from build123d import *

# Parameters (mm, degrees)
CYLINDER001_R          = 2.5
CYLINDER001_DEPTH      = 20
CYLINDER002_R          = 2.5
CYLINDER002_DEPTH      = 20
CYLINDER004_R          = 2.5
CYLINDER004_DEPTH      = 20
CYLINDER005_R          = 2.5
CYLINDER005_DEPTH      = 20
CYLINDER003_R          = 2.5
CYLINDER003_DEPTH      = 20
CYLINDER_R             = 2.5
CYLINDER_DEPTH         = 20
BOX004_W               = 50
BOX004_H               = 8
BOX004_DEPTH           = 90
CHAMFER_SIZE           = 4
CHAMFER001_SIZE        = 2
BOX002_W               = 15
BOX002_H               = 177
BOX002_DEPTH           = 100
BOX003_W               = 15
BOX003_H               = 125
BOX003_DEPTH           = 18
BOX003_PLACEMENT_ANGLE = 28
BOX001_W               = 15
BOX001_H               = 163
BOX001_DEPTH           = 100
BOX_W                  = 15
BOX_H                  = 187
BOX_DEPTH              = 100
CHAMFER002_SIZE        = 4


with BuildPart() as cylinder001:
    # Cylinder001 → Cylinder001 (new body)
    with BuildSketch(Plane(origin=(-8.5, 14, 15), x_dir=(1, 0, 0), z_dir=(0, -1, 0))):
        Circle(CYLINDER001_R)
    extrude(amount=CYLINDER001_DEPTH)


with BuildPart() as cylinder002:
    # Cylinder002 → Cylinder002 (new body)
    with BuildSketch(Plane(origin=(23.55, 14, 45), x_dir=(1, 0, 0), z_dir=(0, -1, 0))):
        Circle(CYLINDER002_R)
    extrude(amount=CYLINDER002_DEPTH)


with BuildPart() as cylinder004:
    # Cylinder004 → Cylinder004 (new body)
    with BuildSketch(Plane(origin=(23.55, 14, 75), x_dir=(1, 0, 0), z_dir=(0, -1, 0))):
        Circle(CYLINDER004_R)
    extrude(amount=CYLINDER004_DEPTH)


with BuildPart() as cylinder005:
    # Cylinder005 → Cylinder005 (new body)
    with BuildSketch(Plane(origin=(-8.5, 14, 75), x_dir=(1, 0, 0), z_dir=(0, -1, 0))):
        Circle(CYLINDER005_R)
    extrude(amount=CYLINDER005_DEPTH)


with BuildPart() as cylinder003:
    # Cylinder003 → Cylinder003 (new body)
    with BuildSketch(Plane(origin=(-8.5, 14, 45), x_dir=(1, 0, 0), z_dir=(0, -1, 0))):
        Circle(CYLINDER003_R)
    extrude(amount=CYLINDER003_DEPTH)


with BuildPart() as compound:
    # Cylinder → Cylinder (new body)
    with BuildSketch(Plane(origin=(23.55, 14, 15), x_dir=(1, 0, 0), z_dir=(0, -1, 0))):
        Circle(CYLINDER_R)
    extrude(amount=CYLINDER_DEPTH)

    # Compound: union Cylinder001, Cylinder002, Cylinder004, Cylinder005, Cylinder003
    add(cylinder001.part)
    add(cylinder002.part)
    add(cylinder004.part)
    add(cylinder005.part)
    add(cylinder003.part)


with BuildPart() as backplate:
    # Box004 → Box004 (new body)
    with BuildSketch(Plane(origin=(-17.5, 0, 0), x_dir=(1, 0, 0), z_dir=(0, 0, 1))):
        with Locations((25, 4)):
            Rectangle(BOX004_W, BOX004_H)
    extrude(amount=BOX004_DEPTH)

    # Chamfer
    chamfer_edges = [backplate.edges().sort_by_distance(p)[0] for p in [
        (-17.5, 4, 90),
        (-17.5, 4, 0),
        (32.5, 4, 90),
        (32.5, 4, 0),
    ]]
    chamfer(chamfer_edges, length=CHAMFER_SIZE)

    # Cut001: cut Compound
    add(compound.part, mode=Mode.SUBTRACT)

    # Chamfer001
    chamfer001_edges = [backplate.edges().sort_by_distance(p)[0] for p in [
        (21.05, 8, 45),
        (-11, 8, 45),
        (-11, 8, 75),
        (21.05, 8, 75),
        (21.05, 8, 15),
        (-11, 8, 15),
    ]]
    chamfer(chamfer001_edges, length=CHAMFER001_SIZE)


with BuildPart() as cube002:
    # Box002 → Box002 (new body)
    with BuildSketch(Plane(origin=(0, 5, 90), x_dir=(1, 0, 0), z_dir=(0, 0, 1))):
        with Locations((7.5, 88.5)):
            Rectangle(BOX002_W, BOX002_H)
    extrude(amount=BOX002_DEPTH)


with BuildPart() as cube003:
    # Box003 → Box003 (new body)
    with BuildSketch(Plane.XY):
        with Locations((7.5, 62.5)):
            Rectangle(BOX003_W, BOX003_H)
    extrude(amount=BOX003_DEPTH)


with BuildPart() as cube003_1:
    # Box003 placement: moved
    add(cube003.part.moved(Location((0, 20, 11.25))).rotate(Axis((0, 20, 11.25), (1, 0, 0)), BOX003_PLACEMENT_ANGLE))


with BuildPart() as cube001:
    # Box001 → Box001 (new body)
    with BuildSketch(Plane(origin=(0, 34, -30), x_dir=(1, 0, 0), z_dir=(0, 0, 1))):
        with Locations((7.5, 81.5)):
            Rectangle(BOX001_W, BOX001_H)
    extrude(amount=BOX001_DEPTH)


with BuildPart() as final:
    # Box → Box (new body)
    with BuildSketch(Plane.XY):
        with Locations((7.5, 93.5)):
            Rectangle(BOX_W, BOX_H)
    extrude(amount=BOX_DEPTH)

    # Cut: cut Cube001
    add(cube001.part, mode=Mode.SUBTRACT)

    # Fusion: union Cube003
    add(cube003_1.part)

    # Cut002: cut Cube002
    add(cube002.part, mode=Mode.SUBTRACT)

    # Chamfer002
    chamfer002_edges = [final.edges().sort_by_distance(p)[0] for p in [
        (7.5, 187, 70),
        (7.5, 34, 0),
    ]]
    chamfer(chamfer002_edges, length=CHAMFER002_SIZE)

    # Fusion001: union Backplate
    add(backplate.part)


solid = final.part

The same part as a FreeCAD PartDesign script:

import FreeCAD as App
import Part
import Sketcher


def edges_at(feature, points):
    """Names of the edges that pass closest to the given points."""
    edges = feature.Shape.Edges
    near = lambda p: min(range(len(edges)), key=lambda i: edges[i].distToShape(Part.Vertex(*p))[0])
    return sorted({f"Edge{near(p) + 1}" for p in points})


def add_polygon(sketch, points):
    """Adds a closed chain of lines whose ends are joined by coincident constraints."""
    first, n = sketch.GeometryCount, len(points)
    for a, b in zip(points, points[1:] + points[:1]):
        sketch.addGeometry(Part.LineSegment(App.Vector(*a, 0), App.Vector(*b, 0)), False)
    for i in range(n):
        sketch.addConstraint(Sketcher.Constraint("Coincident", first + i, 2, first + (i + 1) % n, 1))

doc = App.newDocument("Part")
body = doc.addObject("PartDesign::Body", "Body")

# Sketch on XZ plane
sketch1 = body.newObject("Sketcher::SketchObject", "Sketch")
sketch1.AttachmentSupport = (doc.getObject("XZ_Plane"), [""])
sketch1.MapMode = "FlatFace"
sketch1.AttachmentOffset = App.Placement(App.Vector(0, 0, -14), App.Rotation())
sketch1.addGeometry(Part.Circle(App.Vector(-8.5, 15, 0), App.Vector(0, 0, 1), 2.5), False)
sketch1.addConstraint([
    Sketcher.Constraint("Diameter", 0, 5.0),
    Sketcher.Constraint("DistanceY", -1, 1, 0, 3, 15.0),
    Sketcher.Constraint("DistanceX", 0, 3, -1, 1, 8.5),
])
pad1 = body.newObject("PartDesign::Pad", "Pad")
pad1.Profile = sketch1
pad1.Length = 20
body2 = doc.addObject("PartDesign::Body", "Body001")

# Sketch on XZ plane
sketch2 = body2.newObject("Sketcher::SketchObject", "Sketch001")
sketch2.AttachmentSupport = (doc.getObject("XZ_Plane001"), [""])
sketch2.MapMode = "FlatFace"
sketch2.AttachmentOffset = App.Placement(App.Vector(0, 0, -14), App.Rotation())
sketch2.addGeometry(Part.Circle(App.Vector(23.55, 45, 0), App.Vector(0, 0, 1), 2.5), False)
sketch2.addConstraint([
    Sketcher.Constraint("Diameter", 0, 5.0),
    Sketcher.Constraint("DistanceY", -1, 1, 0, 3, 45.0),
    Sketcher.Constraint("DistanceX", -1, 1, 0, 3, 23.55),
])
pad2 = body2.newObject("PartDesign::Pad", "Pad001")
pad2.Profile = sketch2
pad2.Length = 20
body3 = doc.addObject("PartDesign::Body", "Body002")

# Sketch on XZ plane
sketch3 = body3.newObject("Sketcher::SketchObject", "Sketch002")
sketch3.AttachmentSupport = (doc.getObject("XZ_Plane002"), [""])
sketch3.MapMode = "FlatFace"
sketch3.AttachmentOffset = App.Placement(App.Vector(0, 0, -14), App.Rotation())
sketch3.addGeometry(Part.Circle(App.Vector(23.55, 75, 0), App.Vector(0, 0, 1), 2.5), False)
sketch3.addConstraint([
    Sketcher.Constraint("Diameter", 0, 5.0),
    Sketcher.Constraint("DistanceY", -1, 1, 0, 3, 75.0),
    Sketcher.Constraint("DistanceX", -1, 1, 0, 3, 23.55),
])
pad3 = body3.newObject("PartDesign::Pad", "Pad002")
pad3.Profile = sketch3
pad3.Length = 20
body4 = doc.addObject("PartDesign::Body", "Body003")

# Sketch on XZ plane
sketch4 = body4.newObject("Sketcher::SketchObject", "Sketch003")
sketch4.AttachmentSupport = (doc.getObject("XZ_Plane003"), [""])
sketch4.MapMode = "FlatFace"
sketch4.AttachmentOffset = App.Placement(App.Vector(0, 0, -14), App.Rotation())
sketch4.addGeometry(Part.Circle(App.Vector(-8.5, 75, 0), App.Vector(0, 0, 1), 2.5), False)
sketch4.addConstraint([
    Sketcher.Constraint("Diameter", 0, 5.0),
    Sketcher.Constraint("DistanceY", -1, 1, 0, 3, 75.0),
    Sketcher.Constraint("DistanceX", 0, 3, -1, 1, 8.5),
])
pad4 = body4.newObject("PartDesign::Pad", "Pad003")
pad4.Profile = sketch4
pad4.Length = 20
body5 = doc.addObject("PartDesign::Body", "Body004")

# Sketch on XZ plane
sketch5 = body5.newObject("Sketcher::SketchObject", "Sketch004")
sketch5.AttachmentSupport = (doc.getObject("XZ_Plane004"), [""])
sketch5.MapMode = "FlatFace"
sketch5.AttachmentOffset = App.Placement(App.Vector(0, 0, -14), App.Rotation())
sketch5.addGeometry(Part.Circle(App.Vector(-8.5, 45, 0), App.Vector(0, 0, 1), 2.5), False)
sketch5.addConstraint([
    Sketcher.Constraint("Diameter", 0, 5.0),
    Sketcher.Constraint("DistanceY", -1, 1, 0, 3, 45.0),
    Sketcher.Constraint("DistanceX", 0, 3, -1, 1, 8.5),
])
pad5 = body5.newObject("PartDesign::Pad", "Pad004")
pad5.Profile = sketch5
pad5.Length = 20
body6 = doc.addObject("PartDesign::Body", "Body005")
body6.AllowCompound = True

# Sketch on XZ plane
sketch6 = body6.newObject("Sketcher::SketchObject", "Sketch005")
sketch6.AttachmentSupport = (doc.getObject("XZ_Plane005"), [""])
sketch6.MapMode = "FlatFace"
sketch6.AttachmentOffset = App.Placement(App.Vector(0, 0, -14), App.Rotation())
sketch6.addGeometry(Part.Circle(App.Vector(23.55, 15, 0), App.Vector(0, 0, 1), 2.5), False)
sketch6.addConstraint([
    Sketcher.Constraint("Diameter", 0, 5.0),
    Sketcher.Constraint("DistanceY", -1, 1, 0, 3, 15.0),
    Sketcher.Constraint("DistanceX", -1, 1, 0, 3, 23.55),
])
pad6 = body6.newObject("PartDesign::Pad", "Pad005")
pad6.Profile = sketch6
pad6.Length = 20
doc.recompute()

boolean = body6.newObject("PartDesign::Boolean", "Boolean")
boolean.Type = "Fuse"
boolean.addObjects([body])
doc.recompute()

boolean2 = body6.newObject("PartDesign::Boolean", "Boolean001")
boolean2.Type = "Fuse"
boolean2.addObjects([body2])
doc.recompute()

boolean3 = body6.newObject("PartDesign::Boolean", "Boolean002")
boolean3.Type = "Fuse"
boolean3.addObjects([body3])
doc.recompute()

boolean4 = body6.newObject("PartDesign::Boolean", "Boolean003")
boolean4.Type = "Fuse"
boolean4.addObjects([body4])
doc.recompute()

boolean5 = body6.newObject("PartDesign::Boolean", "Boolean004")
boolean5.Type = "Fuse"
boolean5.addObjects([body5])
body7 = doc.addObject("PartDesign::Body", "Body006")

# Sketch on XY plane
sketch7 = body7.newObject("Sketcher::SketchObject", "Sketch006")
sketch7.AttachmentSupport = (doc.getObject("XY_Plane006"), [""])
sketch7.MapMode = "FlatFace"
add_polygon(sketch7, [(-17.5, 8), (-17.5, 0), (32.5, 0), (32.5, 8)])  # lines 0-3
sketch7.addConstraint([
    Sketcher.Constraint("Vertical", 0),
    Sketcher.Constraint("Horizontal", 1),
    Sketcher.Constraint("Vertical", 2),
    Sketcher.Constraint("Horizontal", 3),
    Sketcher.Constraint("PointOnObject", 0, 2, -1),
    Sketcher.Constraint("DistanceX", 1, 1, 1, 2, 50.0),
    Sketcher.Constraint("DistanceY", 0, 2, 0, 1, 8.0),
    Sketcher.Constraint("DistanceX", 0, 2, -1, 1, 17.5),
])
pad7 = body7.newObject("PartDesign::Pad", "Pad006")
pad7.Profile = sketch7
pad7.Length = 90
doc.recompute()

chamfer = body7.newObject("PartDesign::Chamfer", "Chamfer")
chamfer.Base = (pad7, edges_at(pad7, [
    (-17.5, 4, 90),
    (-17.5, 4, 0),
    (32.5, 4, 90),
    (32.5, 4, 0),
]))
chamfer.Size = 4
doc.recompute()

boolean6 = body7.newObject("PartDesign::Boolean", "Boolean005")
boolean6.Type = "Cut"
boolean6.addObjects([body6])
doc.recompute()

chamfer2 = body7.newObject("PartDesign::Chamfer", "Chamfer001")
chamfer2.Base = (boolean6, edges_at(boolean6, [
    (21.05, 8, 45),
    (-11, 8, 45),
    (-11, 8, 75),
    (21.05, 8, 75),
    (21.05, 8, 15),
    (-11, 8, 15),
]))
chamfer2.Size = 2
body8 = doc.addObject("PartDesign::Body", "Body007")

# Sketch on XY plane
sketch8 = body8.newObject("Sketcher::SketchObject", "Sketch007")
sketch8.AttachmentSupport = (doc.getObject("XY_Plane007"), [""])
sketch8.MapMode = "FlatFace"
sketch8.AttachmentOffset = App.Placement(App.Vector(0, 0, 90), App.Rotation())
add_polygon(sketch8, [(0, 182), (0, 5), (15, 5), (15, 182)])  # lines 0-3
sketch8.addConstraint([
    Sketcher.Constraint("Vertical", 0),
    Sketcher.Constraint("Horizontal", 1),
    Sketcher.Constraint("Vertical", 2),
    Sketcher.Constraint("Horizontal", 3),
    Sketcher.Constraint("PointOnObject", 0, 2, -2),
    Sketcher.Constraint("DistanceX", 1, 1, 1, 2, 15.0),
    Sketcher.Constraint("DistanceY", 0, 2, 0, 1, 177.0),
    Sketcher.Constraint("DistanceY", -1, 1, 0, 2, 5.0),
])
pad8 = body8.newObject("PartDesign::Pad", "Pad007")
pad8.Profile = sketch8
pad8.Length = 100
body9 = doc.addObject("PartDesign::Body", "Body008")

# Sketch on XY plane
sketch9 = body9.newObject("Sketcher::SketchObject", "Sketch008")
sketch9.AttachmentSupport = (doc.getObject("XY_Plane008"), [""])
sketch9.MapMode = "FlatFace"
add_polygon(sketch9, [(0, 125), (0, 0), (15, 0), (15, 125)])  # lines 0-3
sketch9.addConstraint([
    Sketcher.Constraint("Vertical", 0),
    Sketcher.Constraint("Horizontal", 1),
    Sketcher.Constraint("Vertical", 2),
    Sketcher.Constraint("Horizontal", 3),
    Sketcher.Constraint("Coincident", 0, 2, -1, 1),
    Sketcher.Constraint("DistanceX", 1, 1, 1, 2, 15.0),
    Sketcher.Constraint("DistanceY", 0, 2, 0, 1, 125.0),
])
pad9 = body9.newObject("PartDesign::Pad", "Pad008")
pad9.Profile = sketch9
pad9.Length = 18
body10 = doc.addObject("PartDesign::Body", "Body009")
doc.recompute()

body9.Placement = App.Placement(App.Vector(0, 20, 11.25), App.Rotation(App.Vector(1, 0, 0), 28))
boolean7 = body10.newObject("PartDesign::Boolean", "Boolean006")
boolean7.Type = "Fuse"
boolean7.addObjects([body9])
body11 = doc.addObject("PartDesign::Body", "Body010")

# Sketch on XY plane
sketch10 = body11.newObject("Sketcher::SketchObject", "Sketch009")
sketch10.AttachmentSupport = (doc.getObject("XY_Plane010"), [""])
sketch10.MapMode = "FlatFace"
sketch10.AttachmentOffset = App.Placement(App.Vector(0, 0, -30), App.Rotation())
add_polygon(sketch10, [(0, 197), (0, 34), (15, 34), (15, 197)])  # lines 0-3
sketch10.addConstraint([
    Sketcher.Constraint("Vertical", 0),
    Sketcher.Constraint("Horizontal", 1),
    Sketcher.Constraint("Vertical", 2),
    Sketcher.Constraint("Horizontal", 3),
    Sketcher.Constraint("PointOnObject", 0, 2, -2),
    Sketcher.Constraint("DistanceX", 1, 1, 1, 2, 15.0),
    Sketcher.Constraint("DistanceY", 0, 2, 0, 1, 163.0),
    Sketcher.Constraint("DistanceY", -1, 1, 0, 2, 34.0),
])
pad10 = body11.newObject("PartDesign::Pad", "Pad009")
pad10.Profile = sketch10
pad10.Length = 100
body12 = doc.addObject("PartDesign::Body", "Body011")

# Sketch on XY plane
sketch11 = body12.newObject("Sketcher::SketchObject", "Sketch010")
sketch11.AttachmentSupport = (doc.getObject("XY_Plane011"), [""])
sketch11.MapMode = "FlatFace"
add_polygon(sketch11, [(0, 187), (0, 0), (15, 0), (15, 187)])  # lines 0-3
sketch11.addConstraint([
    Sketcher.Constraint("Vertical", 0),
    Sketcher.Constraint("Horizontal", 1),
    Sketcher.Constraint("Vertical", 2),
    Sketcher.Constraint("Horizontal", 3),
    Sketcher.Constraint("Coincident", 0, 2, -1, 1),
    Sketcher.Constraint("DistanceX", 1, 1, 1, 2, 15.0),
    Sketcher.Constraint("DistanceY", 0, 2, 0, 1, 187.0),
])
pad11 = body12.newObject("PartDesign::Pad", "Pad010")
pad11.Profile = sketch11
pad11.Length = 100
doc.recompute()

boolean8 = body12.newObject("PartDesign::Boolean", "Boolean007")
boolean8.Type = "Cut"
boolean8.addObjects([body11])
doc.recompute()

boolean9 = body12.newObject("PartDesign::Boolean", "Boolean008")
boolean9.Type = "Fuse"
boolean9.addObjects([body10])
doc.recompute()

boolean10 = body12.newObject("PartDesign::Boolean", "Boolean009")
boolean10.Type = "Cut"
boolean10.addObjects([body8])
doc.recompute()

chamfer3 = body12.newObject("PartDesign::Chamfer", "Chamfer002")
chamfer3.Base = (boolean10, edges_at(boolean10, [(7.5, 187, 70), (7.5, 34, 0)]))
chamfer3.Size = 4
doc.recompute()

boolean11 = body12.newObject("PartDesign::Boolean", "Boolean010")
boolean11.Type = "Fuse"
boolean11.addObjects([body7])

doc.recompute()
